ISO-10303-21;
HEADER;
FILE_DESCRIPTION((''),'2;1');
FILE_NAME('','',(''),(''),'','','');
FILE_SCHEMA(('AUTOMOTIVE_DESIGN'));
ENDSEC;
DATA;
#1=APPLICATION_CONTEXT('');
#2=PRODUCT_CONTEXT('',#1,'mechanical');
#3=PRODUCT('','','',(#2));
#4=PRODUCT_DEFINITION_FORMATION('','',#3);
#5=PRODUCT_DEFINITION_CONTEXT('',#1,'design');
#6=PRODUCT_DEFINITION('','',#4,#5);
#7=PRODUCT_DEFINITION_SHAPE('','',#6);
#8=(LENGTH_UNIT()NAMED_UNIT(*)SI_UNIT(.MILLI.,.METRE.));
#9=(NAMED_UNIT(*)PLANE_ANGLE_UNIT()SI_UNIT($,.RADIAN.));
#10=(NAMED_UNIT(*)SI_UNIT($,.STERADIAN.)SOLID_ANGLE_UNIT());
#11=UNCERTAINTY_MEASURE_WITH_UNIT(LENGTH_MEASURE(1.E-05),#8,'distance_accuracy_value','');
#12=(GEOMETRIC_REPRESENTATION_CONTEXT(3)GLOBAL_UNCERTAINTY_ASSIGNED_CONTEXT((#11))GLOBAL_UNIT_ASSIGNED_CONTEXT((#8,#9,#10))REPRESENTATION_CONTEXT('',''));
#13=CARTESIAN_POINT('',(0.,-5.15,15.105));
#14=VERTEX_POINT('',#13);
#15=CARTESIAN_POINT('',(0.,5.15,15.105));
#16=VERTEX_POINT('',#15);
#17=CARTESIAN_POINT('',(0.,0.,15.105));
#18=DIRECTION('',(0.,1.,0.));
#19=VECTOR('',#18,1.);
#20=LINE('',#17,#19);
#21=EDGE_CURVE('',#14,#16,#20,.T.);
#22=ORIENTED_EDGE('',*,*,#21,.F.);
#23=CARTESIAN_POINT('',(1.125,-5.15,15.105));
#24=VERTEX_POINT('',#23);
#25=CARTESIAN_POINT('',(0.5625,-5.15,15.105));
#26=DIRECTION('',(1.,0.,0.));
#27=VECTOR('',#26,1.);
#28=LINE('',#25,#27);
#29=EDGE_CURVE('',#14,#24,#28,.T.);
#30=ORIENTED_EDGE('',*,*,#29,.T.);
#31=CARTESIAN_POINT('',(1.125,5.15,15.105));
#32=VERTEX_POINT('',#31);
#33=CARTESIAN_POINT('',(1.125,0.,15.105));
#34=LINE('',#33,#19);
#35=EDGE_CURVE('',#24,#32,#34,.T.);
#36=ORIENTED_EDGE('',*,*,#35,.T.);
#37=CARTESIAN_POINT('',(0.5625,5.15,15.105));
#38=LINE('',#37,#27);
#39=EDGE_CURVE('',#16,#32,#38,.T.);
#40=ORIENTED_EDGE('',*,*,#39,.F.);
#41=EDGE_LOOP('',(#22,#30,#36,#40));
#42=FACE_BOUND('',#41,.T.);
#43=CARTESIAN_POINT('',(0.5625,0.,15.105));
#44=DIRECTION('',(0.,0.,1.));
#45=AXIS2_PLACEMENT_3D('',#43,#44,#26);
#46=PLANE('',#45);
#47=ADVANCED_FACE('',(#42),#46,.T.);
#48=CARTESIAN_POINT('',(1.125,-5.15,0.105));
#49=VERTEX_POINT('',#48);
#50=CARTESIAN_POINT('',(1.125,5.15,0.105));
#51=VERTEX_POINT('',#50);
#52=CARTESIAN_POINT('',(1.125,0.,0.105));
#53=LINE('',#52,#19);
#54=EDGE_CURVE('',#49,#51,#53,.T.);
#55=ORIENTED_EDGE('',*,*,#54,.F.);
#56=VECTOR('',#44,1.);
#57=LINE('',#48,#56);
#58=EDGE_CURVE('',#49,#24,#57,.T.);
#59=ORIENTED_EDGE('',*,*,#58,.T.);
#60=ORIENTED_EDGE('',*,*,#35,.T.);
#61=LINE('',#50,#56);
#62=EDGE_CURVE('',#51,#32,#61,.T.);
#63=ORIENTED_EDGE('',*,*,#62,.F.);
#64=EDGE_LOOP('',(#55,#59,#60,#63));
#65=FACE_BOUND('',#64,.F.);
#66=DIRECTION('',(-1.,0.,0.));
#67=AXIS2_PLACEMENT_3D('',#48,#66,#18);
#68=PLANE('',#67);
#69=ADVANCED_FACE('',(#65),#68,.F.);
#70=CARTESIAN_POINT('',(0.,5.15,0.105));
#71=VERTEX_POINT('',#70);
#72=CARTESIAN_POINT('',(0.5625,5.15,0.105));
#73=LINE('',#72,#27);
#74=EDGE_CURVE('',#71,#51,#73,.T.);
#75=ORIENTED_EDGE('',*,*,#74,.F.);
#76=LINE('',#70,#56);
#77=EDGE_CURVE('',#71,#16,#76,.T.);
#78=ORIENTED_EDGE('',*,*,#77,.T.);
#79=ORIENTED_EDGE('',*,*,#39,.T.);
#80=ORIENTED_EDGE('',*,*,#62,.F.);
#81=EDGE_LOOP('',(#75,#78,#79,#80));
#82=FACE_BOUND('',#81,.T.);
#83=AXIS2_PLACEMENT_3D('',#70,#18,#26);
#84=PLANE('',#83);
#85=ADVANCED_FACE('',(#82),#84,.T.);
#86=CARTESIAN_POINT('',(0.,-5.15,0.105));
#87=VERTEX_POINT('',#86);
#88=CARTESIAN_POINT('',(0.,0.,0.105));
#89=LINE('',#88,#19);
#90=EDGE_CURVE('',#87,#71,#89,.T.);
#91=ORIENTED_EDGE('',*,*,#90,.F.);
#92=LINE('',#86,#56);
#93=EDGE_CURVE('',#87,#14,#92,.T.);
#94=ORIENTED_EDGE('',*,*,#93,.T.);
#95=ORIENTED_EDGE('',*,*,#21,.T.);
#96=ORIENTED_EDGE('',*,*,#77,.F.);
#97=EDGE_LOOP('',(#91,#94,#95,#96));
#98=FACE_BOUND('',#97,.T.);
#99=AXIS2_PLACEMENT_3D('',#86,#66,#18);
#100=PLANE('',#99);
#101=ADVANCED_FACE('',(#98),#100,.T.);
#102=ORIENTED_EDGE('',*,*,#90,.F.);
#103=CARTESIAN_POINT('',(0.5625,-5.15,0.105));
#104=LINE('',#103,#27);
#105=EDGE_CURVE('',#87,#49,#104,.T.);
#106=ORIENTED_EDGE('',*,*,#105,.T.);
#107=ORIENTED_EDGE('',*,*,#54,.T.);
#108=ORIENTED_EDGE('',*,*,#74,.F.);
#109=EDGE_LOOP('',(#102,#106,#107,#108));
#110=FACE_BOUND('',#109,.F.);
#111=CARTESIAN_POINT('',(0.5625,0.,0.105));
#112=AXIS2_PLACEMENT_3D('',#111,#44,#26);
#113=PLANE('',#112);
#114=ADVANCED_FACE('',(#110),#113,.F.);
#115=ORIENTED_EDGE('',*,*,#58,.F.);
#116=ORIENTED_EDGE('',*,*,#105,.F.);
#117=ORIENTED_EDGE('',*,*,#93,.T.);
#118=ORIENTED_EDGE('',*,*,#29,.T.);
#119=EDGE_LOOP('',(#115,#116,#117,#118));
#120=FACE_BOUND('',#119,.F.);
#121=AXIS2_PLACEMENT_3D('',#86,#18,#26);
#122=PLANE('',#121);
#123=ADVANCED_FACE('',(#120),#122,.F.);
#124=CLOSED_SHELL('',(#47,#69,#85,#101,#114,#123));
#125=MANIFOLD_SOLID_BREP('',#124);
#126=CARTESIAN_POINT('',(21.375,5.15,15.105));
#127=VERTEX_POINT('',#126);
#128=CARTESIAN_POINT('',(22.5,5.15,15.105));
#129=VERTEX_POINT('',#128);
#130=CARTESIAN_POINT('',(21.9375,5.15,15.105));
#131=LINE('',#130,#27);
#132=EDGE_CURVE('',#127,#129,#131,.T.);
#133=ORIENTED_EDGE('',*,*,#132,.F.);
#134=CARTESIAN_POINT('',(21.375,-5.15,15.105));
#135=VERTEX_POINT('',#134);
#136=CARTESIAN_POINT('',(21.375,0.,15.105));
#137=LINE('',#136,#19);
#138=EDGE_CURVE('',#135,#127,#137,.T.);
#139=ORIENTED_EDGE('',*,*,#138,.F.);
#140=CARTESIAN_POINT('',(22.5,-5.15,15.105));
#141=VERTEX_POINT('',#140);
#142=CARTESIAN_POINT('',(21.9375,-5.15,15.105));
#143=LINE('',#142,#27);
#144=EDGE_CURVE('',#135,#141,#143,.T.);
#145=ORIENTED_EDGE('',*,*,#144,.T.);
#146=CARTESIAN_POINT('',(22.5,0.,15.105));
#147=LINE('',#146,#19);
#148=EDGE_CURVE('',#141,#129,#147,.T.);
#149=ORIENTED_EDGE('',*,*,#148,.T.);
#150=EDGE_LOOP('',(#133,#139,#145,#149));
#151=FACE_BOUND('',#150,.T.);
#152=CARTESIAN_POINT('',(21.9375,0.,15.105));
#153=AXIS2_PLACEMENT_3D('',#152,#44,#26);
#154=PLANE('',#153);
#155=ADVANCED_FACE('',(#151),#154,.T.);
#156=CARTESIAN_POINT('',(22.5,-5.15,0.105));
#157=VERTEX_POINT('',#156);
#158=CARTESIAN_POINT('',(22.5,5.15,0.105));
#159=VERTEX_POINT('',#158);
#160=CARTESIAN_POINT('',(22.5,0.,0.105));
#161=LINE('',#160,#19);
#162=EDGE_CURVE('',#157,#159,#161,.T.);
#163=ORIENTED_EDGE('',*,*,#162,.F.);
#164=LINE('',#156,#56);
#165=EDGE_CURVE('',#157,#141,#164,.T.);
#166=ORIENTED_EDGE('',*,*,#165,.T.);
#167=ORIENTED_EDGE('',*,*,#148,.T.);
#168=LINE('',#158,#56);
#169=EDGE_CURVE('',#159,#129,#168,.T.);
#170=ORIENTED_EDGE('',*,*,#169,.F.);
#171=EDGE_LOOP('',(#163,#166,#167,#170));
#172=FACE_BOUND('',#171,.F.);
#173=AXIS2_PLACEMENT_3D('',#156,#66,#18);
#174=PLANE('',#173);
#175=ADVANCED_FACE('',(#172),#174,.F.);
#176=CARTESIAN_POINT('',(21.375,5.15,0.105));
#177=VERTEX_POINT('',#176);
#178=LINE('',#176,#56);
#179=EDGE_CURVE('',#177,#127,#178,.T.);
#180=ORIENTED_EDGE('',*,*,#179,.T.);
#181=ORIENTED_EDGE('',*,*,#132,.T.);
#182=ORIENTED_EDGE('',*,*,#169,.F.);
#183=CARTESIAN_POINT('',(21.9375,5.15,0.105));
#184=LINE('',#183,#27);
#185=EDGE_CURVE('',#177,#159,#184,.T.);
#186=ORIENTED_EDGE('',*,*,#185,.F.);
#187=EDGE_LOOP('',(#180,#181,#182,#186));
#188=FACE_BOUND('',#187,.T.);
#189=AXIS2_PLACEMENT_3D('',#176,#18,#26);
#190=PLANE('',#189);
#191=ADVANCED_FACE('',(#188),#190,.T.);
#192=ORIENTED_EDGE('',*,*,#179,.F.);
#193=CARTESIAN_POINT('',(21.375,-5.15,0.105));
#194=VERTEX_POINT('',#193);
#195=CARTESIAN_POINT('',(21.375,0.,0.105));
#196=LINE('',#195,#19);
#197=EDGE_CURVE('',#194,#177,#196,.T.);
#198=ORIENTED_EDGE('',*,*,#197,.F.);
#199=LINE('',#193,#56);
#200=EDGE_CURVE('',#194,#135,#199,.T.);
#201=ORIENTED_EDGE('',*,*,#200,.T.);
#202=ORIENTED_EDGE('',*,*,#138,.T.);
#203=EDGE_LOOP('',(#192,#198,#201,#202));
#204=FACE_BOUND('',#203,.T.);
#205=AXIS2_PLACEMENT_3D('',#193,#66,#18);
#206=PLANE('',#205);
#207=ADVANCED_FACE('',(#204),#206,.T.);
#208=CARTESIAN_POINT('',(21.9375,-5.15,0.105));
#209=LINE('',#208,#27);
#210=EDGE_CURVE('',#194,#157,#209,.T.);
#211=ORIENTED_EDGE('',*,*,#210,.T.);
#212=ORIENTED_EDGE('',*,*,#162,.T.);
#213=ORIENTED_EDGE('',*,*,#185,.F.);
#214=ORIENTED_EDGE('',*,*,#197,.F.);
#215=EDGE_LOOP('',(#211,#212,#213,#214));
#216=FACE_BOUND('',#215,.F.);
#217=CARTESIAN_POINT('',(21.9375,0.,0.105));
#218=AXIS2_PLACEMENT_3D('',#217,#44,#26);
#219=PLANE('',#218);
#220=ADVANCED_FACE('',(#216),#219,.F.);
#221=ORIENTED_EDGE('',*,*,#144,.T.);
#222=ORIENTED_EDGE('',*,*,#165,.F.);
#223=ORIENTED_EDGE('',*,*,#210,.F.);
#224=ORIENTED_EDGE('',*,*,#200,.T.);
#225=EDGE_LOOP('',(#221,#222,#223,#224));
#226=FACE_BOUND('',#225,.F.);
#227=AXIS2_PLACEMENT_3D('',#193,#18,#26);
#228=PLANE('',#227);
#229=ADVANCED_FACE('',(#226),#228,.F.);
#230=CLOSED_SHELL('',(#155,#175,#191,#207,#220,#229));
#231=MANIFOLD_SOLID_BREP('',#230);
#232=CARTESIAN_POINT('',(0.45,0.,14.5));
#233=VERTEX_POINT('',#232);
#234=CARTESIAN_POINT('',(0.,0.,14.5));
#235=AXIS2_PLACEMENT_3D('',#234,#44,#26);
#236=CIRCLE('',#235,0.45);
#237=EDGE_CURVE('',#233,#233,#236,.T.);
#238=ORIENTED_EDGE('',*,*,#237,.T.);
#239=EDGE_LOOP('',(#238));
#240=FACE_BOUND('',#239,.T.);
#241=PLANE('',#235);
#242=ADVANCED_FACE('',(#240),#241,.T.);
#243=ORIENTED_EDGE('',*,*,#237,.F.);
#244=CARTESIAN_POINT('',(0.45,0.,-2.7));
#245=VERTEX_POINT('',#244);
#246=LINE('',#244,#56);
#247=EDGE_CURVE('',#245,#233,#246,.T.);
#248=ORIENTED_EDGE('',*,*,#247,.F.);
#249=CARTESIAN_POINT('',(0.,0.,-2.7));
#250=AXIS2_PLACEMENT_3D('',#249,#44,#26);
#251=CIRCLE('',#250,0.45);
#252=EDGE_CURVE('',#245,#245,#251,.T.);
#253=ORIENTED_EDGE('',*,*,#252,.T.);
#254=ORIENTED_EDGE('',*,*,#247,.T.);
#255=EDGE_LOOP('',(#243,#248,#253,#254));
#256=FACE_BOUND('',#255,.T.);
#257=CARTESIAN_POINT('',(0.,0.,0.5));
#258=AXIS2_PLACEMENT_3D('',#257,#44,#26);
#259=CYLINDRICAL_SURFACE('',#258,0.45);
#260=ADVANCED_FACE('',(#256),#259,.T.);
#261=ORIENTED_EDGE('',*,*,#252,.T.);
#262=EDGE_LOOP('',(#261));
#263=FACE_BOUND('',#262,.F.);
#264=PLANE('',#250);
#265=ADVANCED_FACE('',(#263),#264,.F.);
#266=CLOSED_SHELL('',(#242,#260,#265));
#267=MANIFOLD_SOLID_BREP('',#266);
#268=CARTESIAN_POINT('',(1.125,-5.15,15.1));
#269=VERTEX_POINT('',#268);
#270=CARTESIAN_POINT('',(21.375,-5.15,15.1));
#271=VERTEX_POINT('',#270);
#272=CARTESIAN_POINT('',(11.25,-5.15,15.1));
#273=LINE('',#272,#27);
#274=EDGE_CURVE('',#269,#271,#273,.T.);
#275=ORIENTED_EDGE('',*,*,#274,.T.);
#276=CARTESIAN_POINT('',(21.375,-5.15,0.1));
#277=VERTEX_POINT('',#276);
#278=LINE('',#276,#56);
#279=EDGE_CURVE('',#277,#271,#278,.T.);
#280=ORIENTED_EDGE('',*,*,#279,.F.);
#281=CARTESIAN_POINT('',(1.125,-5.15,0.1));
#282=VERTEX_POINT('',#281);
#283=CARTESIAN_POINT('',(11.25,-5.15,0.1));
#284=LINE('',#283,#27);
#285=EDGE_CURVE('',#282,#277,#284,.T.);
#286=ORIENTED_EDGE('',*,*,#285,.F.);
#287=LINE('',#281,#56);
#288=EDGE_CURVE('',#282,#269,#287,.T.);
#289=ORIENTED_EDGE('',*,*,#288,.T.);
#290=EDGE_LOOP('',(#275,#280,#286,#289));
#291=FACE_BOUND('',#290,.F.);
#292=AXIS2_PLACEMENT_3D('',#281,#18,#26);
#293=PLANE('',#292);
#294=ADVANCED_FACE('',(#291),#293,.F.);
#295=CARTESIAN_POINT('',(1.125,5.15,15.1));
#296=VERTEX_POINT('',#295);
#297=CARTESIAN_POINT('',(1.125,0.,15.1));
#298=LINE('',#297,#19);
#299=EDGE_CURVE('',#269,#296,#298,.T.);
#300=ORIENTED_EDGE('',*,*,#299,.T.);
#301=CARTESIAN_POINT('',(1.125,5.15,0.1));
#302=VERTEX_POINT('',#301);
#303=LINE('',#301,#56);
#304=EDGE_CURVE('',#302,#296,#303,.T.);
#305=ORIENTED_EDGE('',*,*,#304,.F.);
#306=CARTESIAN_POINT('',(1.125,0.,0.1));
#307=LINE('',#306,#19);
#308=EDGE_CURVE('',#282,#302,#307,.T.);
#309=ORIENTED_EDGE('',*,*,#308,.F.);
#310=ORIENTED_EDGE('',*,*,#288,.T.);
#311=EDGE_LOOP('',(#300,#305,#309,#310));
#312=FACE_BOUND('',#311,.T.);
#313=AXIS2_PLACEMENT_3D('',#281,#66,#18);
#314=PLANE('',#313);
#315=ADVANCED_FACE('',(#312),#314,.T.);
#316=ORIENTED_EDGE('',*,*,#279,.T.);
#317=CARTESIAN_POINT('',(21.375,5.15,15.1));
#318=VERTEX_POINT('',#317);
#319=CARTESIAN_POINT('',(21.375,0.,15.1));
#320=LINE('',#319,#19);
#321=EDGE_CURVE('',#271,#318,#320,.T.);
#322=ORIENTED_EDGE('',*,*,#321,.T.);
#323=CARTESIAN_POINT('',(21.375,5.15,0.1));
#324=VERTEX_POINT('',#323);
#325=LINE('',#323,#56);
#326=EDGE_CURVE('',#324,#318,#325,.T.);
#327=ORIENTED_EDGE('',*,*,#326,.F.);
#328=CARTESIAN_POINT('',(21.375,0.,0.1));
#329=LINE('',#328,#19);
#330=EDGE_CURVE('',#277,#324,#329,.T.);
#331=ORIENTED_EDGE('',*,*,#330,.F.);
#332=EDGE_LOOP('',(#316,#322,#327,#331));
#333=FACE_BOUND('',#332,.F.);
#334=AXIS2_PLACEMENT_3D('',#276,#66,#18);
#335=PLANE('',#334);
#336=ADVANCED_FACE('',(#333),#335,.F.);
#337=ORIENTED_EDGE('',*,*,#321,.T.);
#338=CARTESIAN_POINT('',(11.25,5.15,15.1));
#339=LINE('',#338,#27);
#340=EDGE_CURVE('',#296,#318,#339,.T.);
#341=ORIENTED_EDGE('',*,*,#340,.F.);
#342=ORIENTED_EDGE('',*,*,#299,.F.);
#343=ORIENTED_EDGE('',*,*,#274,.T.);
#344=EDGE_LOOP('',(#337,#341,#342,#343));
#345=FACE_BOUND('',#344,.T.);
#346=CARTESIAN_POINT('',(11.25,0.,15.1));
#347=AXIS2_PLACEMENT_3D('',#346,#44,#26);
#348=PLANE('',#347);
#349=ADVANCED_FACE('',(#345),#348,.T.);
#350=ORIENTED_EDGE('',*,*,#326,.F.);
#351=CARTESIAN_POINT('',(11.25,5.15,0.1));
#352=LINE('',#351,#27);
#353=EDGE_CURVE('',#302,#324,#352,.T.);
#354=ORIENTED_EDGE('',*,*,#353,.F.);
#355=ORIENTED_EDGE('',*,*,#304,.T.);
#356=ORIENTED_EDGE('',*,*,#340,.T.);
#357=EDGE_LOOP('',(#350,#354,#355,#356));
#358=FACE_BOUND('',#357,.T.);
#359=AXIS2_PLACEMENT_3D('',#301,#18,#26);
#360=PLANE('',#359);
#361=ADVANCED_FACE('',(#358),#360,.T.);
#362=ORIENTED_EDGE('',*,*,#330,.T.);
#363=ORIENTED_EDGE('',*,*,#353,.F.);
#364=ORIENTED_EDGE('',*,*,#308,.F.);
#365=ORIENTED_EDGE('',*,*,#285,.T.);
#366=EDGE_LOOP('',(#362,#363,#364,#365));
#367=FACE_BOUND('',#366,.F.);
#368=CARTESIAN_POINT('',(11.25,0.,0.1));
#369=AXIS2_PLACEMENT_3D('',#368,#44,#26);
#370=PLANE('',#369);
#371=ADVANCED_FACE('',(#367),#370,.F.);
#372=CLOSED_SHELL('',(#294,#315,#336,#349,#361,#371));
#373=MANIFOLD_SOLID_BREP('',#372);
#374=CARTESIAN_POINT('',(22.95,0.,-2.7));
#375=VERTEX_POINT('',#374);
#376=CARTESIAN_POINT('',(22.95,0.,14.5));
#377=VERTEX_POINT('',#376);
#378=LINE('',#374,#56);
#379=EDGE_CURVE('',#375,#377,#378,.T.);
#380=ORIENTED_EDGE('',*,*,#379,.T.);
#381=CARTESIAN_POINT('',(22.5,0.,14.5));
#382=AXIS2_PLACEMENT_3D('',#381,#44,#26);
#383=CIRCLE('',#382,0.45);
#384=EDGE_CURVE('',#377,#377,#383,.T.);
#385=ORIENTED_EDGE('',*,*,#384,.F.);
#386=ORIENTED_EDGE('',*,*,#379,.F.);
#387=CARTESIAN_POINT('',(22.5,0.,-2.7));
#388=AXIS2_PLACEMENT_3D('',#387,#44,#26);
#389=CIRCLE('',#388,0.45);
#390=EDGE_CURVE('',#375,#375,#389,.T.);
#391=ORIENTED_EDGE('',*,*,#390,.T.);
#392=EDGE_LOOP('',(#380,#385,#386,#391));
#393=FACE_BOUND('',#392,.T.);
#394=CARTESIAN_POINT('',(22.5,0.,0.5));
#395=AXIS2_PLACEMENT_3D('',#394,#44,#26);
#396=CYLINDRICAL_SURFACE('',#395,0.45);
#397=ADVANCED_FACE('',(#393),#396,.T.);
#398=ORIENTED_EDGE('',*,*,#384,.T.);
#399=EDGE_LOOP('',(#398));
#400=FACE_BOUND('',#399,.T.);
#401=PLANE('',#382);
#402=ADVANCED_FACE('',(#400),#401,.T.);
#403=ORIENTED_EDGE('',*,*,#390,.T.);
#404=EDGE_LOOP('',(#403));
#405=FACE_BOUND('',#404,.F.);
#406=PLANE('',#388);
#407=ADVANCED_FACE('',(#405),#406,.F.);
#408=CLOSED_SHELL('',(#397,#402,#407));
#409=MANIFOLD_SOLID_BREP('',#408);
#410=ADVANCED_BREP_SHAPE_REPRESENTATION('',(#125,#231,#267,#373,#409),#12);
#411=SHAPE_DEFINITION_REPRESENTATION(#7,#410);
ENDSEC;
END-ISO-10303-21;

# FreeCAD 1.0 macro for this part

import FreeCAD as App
import Part
import Sketcher
from FreeCAD import Vector


def add_polygon(sketch, points):
    """Adds a closed chain of lines whose ends are joined by coincident constraints."""
    first, n = sketch.GeometryCount, len(points)
    for a, b in zip(points, points[1:] + points[:1]):
        sketch.addGeometry(Part.LineSegment(App.Vector(*a, 0), App.Vector(*b, 0)), False)
    for i in range(n):
        sketch.addConstraint(Sketcher.Constraint("Coincident", first + i, 2, first + (i + 1) % n, 1))

doc = App.newDocument("Part")
body = doc.addObject("PartDesign::Body", "Body")

sketch1 = doc.addObject("Sketcher::SketchObject", "Sketch")
body.addObject(sketch1)
sketch1.AttachmentSupport = (doc.XY_Plane, [""])
sketch1.MapMode = "FlatFace"
sketch1.AttachmentOffset = App.Placement(Vector(0, 0, 0.1), App.Rotation())
add_polygon(sketch1, [(1, 5), (1, -5), (21, -5), (21, 5)])
sketch1.addConstraint(Sketcher.Constraint("Vertical", 0))
sketch1.addConstraint(Sketcher.Constraint("Horizontal", 1))
sketch1.addConstraint(Sketcher.Constraint("Vertical", 2))
sketch1.addConstraint(Sketcher.Constraint("Horizontal", 3))
sketch1.addConstraint(Sketcher.Constraint("DistanceY", 0, 2, 0, 1, 10.3))
sketch1.addConstraint(Sketcher.Constraint("DistanceX", 1, 1, 1, 2, 20.25))
sketch1.addConstraint(Sketcher.Constraint("DistanceY", 0, 2, -1, 1, 5.15))
sketch1.addConstraint(Sketcher.Constraint("DistanceX", -1, 1, 0, 2, 1.125))
pad1 = doc.addObject("PartDesign::Pad", "Pad")
body.addObject(pad1)
pad1.Profile = sketch1
pad1.Length = 15
body2 = doc.addObject("PartDesign::Body", "Body001")
body2.AllowCompound = True

sketch2 = doc.addObject("Sketcher::SketchObject", "Sketch001")
body2.addObject(sketch2)
sketch2.AttachmentSupport = (doc.getObject("XY_Plane001"), [""])
sketch2.MapMode = "FlatFace"
sketch2.AttachmentOffset = App.Placement(Vector(0, 0, 0.5), App.Rotation())
sketch2.addGeometry(Part.Circle(Vector(0, 0, 0), Vector(0, 0, 1), 0.45), False)
sketch2.addGeometry(Part.Circle(Vector(22.5, 0, 0), Vector(0, 0, 1), 0.45), False)
sketch2.addConstraint(Sketcher.Constraint("Coincident", 0, 3, -1, 1))
sketch2.addConstraint(Sketcher.Constraint("Equal", 0, 1))
sketch2.addConstraint(Sketcher.Constraint("PointOnObject", 1, 3, -1))
sketch2.addConstraint(Sketcher.Constraint("Diameter", 0, 0.9))
sketch2.addConstraint(Sketcher.Constraint("DistanceX", -1, 1, 1, 3, 22.5))
pad2 = doc.addObject("PartDesign::Pad", "Pad001")
body2.addObject(pad2)
pad2.Profile = sketch2
pad2.Type = "TwoLengths"
pad2.Length = 14
pad2.Length2 = 3.2
body3 = doc.addObject("PartDesign::Body", "Body002")
body3.AllowCompound = True

sketch3 = doc.addObject("Sketcher::SketchObject", "Sketch002")
body3.addObject(sketch3)
sketch3.AttachmentSupport = (doc.getObject("XY_Plane002"), [""])
sketch3.MapMode = "FlatFace"
sketch3.AttachmentOffset = App.Placement(Vector(0, 0, 0.105), App.Rotation())
add_polygon(sketch3, [(0, 5.2), (0, -5.2), (1.1, -5.2), (1.1, 5.2)])
add_polygon(sketch3, [(21.4, 5.2), (21.4, -5.2), (22.5, -5.2), (22.5, 5.2)])
sketch3.addConstraint(Sketcher.Constraint("Vertical", 0))
sketch3.addConstraint(Sketcher.Constraint("Horizontal", 1))
sketch3.addConstraint(Sketcher.Constraint("Vertical", 2))
sketch3.addConstraint(Sketcher.Constraint("Horizontal", 3))
sketch3.addConstraint(Sketcher.Constraint("Vertical", 4))
sketch3.addConstraint(Sketcher.Constraint("Horizontal", 5))
sketch3.addConstraint(Sketcher.Constraint("Vertical", 6))
sketch3.addConstraint(Sketcher.Constraint("Horizontal", 7))
sketch3.addConstraint(Sketcher.Constraint("Symmetric", 0, 2, 3, 2, -1, 1))
sketch3.addConstraint(Sketcher.Constraint("Horizontal", 1, 2, 4, 2))
sketch3.addConstraint(Sketcher.Constraint("Horizontal", 3, 2, 6, 2))
sketch3.addConstraint(Sketcher.Constraint("Equal", 3, 5))
sketch3.addConstraint(Sketcher.Constraint("DistanceY", 0, 2, 0, 1, 10.3))
sketch3.addConstraint(Sketcher.Constraint("DistanceX", -1, 1, 5, 2, 22.5))
sketch3.addConstraint(Sketcher.Constraint("DistanceX", 1, 1, 1, 2, 1.125))
pad3 = doc.addObject("PartDesign::Pad", "Pad002")
body3.addObject(pad3)
pad3.Profile = sketch3
pad3.Length = 15

doc.recompute()
